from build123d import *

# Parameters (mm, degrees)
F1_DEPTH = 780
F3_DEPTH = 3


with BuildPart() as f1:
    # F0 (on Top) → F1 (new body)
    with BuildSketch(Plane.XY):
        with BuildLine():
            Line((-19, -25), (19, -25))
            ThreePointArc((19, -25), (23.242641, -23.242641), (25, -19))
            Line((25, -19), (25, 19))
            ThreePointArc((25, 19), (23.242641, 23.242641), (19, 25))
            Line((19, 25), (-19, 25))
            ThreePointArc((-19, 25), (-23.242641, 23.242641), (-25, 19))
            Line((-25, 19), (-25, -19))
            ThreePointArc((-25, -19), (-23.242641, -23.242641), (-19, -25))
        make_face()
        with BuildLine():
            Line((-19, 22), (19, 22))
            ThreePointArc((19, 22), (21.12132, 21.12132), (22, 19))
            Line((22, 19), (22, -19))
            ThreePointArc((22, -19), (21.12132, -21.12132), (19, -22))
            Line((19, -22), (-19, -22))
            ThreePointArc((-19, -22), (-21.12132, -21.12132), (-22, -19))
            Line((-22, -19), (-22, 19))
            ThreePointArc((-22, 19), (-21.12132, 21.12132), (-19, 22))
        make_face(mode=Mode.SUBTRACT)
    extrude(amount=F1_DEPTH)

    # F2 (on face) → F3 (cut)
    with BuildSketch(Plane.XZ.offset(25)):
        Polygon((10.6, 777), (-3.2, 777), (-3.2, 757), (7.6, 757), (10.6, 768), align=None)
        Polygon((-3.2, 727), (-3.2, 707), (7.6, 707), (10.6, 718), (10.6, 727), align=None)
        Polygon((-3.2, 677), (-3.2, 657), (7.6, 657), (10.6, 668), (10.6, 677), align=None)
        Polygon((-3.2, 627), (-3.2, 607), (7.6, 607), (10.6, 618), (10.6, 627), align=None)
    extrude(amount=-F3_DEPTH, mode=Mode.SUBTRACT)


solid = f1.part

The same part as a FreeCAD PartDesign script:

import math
import FreeCAD as App
import Part
import Sketcher
from FreeCAD import Vector


def add_polygon(sketch, points):
    """Adds a closed chain of lines whose ends are joined by coincident constraints."""
    first, n = sketch.GeometryCount, len(points)
    for a, b in zip(points, points[1:] + points[:1]):
        sketch.addGeometry(Part.LineSegment(App.Vector(*a, 0), App.Vector(*b, 0)), False)
    for i in range(n):
        sketch.addConstraint(Sketcher.Constraint("Coincident", first + i, 2, first + (i + 1) % n, 1))

doc = App.newDocument("Part")
body = doc.addObject("PartDesign::Body", "Body")

# Sketch on XY plane
sketch1 = doc.addObject("Sketcher::SketchObject", "Sketch")
body.addObject(sketch1)
sketch1.AttachmentSupport = (doc.XY_Plane, [""])
sketch1.MapMode = "FlatFace"
sketch1.addGeometry(Part.LineSegment(Vector(-19, -25, 0), Vector(19, -25, 0)), False)
sketch1.addGeometry(Part.ArcOfCircle(Part.Circle(Vector(19, -19, 0), Vector(0, 0, 1), 6), math.radians(-90), math.radians(0)), False)
sketch1.addGeometry(Part.LineSegment(Vector(25, -19, 0), Vector(25, 19, 0)), False)
sketch1.addGeometry(Part.ArcOfCircle(Part.Circle(Vector(19, 19, 0), Vector(0, 0, 1), 6), math.radians(0), math.radians(90)), False)
sketch1.addGeometry(Part.LineSegment(Vector(19, 25, 0), Vector(-19, 25, 0)), False)
sketch1.addGeometry(Part.ArcOfCircle(Part.Circle(Vector(-19, 19, 0), Vector(0, 0, 1), 6), math.radians(90), math.radians(180)), False)
sketch1.addGeometry(Part.LineSegment(Vector(-25, 19, 0), Vector(-25, -19, 0)), False)
sketch1.addGeometry(Part.ArcOfCircle(Part.Circle(Vector(-19, -19, 0), Vector(0, 0, 1), 6), math.radians(180), math.radians(270)), False)
sketch1.addGeometry(Part.ArcOfCircle(Part.Circle(Vector(-19, 19, 0), Vector(0, 0, 1), 3), math.radians(90), math.radians(180)), False)
sketch1.addGeometry(Part.LineSegment(Vector(-19, 22, 0), Vector(19, 22, 0)), False)
sketch1.addGeometry(Part.ArcOfCircle(Part.Circle(Vector(19, 19, 0), Vector(0, 0, 1), 3), math.radians(0), math.radians(90)), False)
sketch1.addGeometry(Part.LineSegment(Vector(22, 19, 0), Vector(22, -19, 0)), False)
sketch1.addGeometry(Part.ArcOfCircle(Part.Circle(Vector(19, -19, 0), Vector(0, 0, 1), 3), math.radians(-90), math.radians(0)), False)
sketch1.addGeometry(Part.LineSegment(Vector(19, -22, 0), Vector(-19, -22, 0)), False)
sketch1.addGeometry(Part.ArcOfCircle(Part.Circle(Vector(-19, -19, 0), Vector(0, 0, 1), 3), math.radians(-180), math.radians(-90)), False)
sketch1.addGeometry(Part.LineSegment(Vector(-22, -19, 0), Vector(-22, 19, 0)), False)
sketch1.addConstraint(Sketcher.Constraint("Tangent", 0, 2, 1, 1))
sketch1.addConstraint(Sketcher.Constraint("Tangent", 1, 2, 2, 1))
sketch1.addConstraint(Sketcher.Constraint("Tangent", 2, 2, 3, 1))
sketch1.addConstraint(Sketcher.Constraint("Tangent", 3, 2, 4, 1))
sketch1.addConstraint(Sketcher.Constraint("Tangent", 4, 2, 5, 1))
sketch1.addConstraint(Sketcher.Constraint("Tangent", 5, 2, 6, 1))
sketch1.addConstraint(Sketcher.Constraint("Tangent", 6, 2, 7, 1))
sketch1.addConstraint(Sketcher.Constraint("Tangent", 7, 2, 0, 1))
sketch1.addConstraint(Sketcher.Constraint("Tangent", 8, 1, 9, 1))
sketch1.addConstraint(Sketcher.Constraint("Tangent", 9, 2, 10, 2))
sketch1.addConstraint(Sketcher.Constraint("Tangent", 10, 1, 11, 1))
sketch1.addConstraint(Sketcher.Constraint("Tangent", 11, 2, 12, 2))
sketch1.addConstraint(Sketcher.Constraint("Tangent", 12, 1, 13, 1))
sketch1.addConstraint(Sketcher.Constraint("Tangent", 13, 2, 14, 2))
sketch1.addConstraint(Sketcher.Constraint("Tangent", 14, 1, 15, 1))
sketch1.addConstraint(Sketcher.Constraint("Tangent", 15, 2, 8, 2))
sketch1.addConstraint(Sketcher.Constraint("Horizontal", 0))
sketch1.addConstraint(Sketcher.Constraint("Vertical", 2))
sketch1.addConstraint(Sketcher.Constraint("Horizontal", 4))
sketch1.addConstraint(Sketcher.Constraint("Vertical", 6))
sketch1.addConstraint(Sketcher.Constraint("Horizontal", 9))
sketch1.addConstraint(Sketcher.Constraint("Vertical", 11))
sketch1.addConstraint(Sketcher.Constraint("Horizontal", 13))
sketch1.addConstraint(Sketcher.Constraint("Vertical", 15))
sketch1.addConstraint(Sketcher.Constraint("Coincident", 8, 3, 5, 3))
sketch1.addConstraint(Sketcher.Constraint("Coincident", 10, 3, 3, 3))
sketch1.addConstraint(Sketcher.Constraint("Coincident", 12, 3, 1, 3))
sketch1.addConstraint(Sketcher.Constraint("Equal", 1, 3))
sketch1.addConstraint(Sketcher.Constraint("Equal", 3, 5))
sketch1.addConstraint(Sketcher.Constraint("Equal", 5, 7))
sketch1.addConstraint(Sketcher.Constraint("Equal", 12, 14))
sketch1.addConstraint(Sketcher.Constraint("Symmetric", 1, 3, 5, 3, -1, 1))
sketch1.addConstraint(Sketcher.Constraint("Equal", 13, 2))
sketch1.addConstraint(Sketcher.Constraint("Radius", 1, 5.999999))
sketch1.addConstraint(Sketcher.Constraint("Radius", 8, 3.000001))
sketch1.addConstraint(Sketcher.Constraint("DistanceX", 0, 1, 0, 2, 38.0))
pad1 = doc.addObject("PartDesign::Pad", "Pad")
body.addObject(pad1)
pad1.Profile = sketch1
pad1.Length = 780

# Sketch on XZ plane
sketch2 = doc.addObject("Sketcher::SketchObject", "Sketch001")
body.addObject(sketch2)
sketch2.AttachmentSupport = (doc.XZ_Plane, [""])
sketch2.MapMode = "FlatFace"
sketch2.AttachmentOffset = App.Placement(Vector(0, 0, 25), App.Rotation())
add_polygon(sketch2, [(11, 777), (-3, 777), (-3, 757), (8, 757), (11, 768)])  # lines 0-4
add_polygon(sketch2, [(-3, 727), (-3, 707), (8, 707), (11, 718), (11, 727)])  # lines 5-9
add_polygon(sketch2, [(-3, 677), (-3, 657), (8, 657), (11, 668), (11, 677)])  # lines 10-14
add_polygon(sketch2, [(-3, 627), (-3, 607), (8, 607), (11, 618), (11, 627)])  # lines 15-19
sketch2.addConstraint(Sketcher.Constraint("Horizontal", 0))
sketch2.addConstraint(Sketcher.Constraint("Vertical", 1))
sketch2.addConstraint(Sketcher.Constraint("Horizontal", 2))
sketch2.addConstraint(Sketcher.Constraint("Vertical", 4))
sketch2.addConstraint(Sketcher.Constraint("Vertical", 5))
sketch2.addConstraint(Sketcher.Constraint("Horizontal", 6))
sketch2.addConstraint(Sketcher.Constraint("Vertical", 8))
sketch2.addConstraint(Sketcher.Constraint("Horizontal", 9))
sketch2.addConstraint(Sketcher.Constraint("Vertical", 10))
sketch2.addConstraint(Sketcher.Constraint("Horizontal", 11))
sketch2.addConstraint(Sketcher.Constraint("Vertical", 13))
sketch2.addConstraint(Sketcher.Constraint("Horizontal", 14))
sketch2.addConstraint(Sketcher.Constraint("Vertical", 15))
sketch2.addConstraint(Sketcher.Constraint("Horizontal", 16))
sketch2.addConstraint(Sketcher.Constraint("Vertical", 18))
sketch2.addConstraint(Sketcher.Constraint("Horizontal", 19))
sketch2.addConstraint(Sketcher.Constraint("Parallel", 3, 7))
sketch2.addConstraint(Sketcher.Constraint("Parallel", 7, 12))
sketch2.addConstraint(Sketcher.Constraint("Parallel", 12, 17))
sketch2.addConstraint(Sketcher.Constraint("Vertical", 1, 2, 5, 2))
sketch2.addConstraint(Sketcher.Constraint("Vertical", 2, 2, 6, 2))
sketch2.addConstraint(Sketcher.Constraint("Vertical", 4, 2, 7, 2))
sketch2.addConstraint(Sketcher.Constraint("Vertical", 9, 2, 10, 2))
sketch2.addConstraint(Sketcher.Constraint("Vertical", 6, 2, 11, 2))
sketch2.addConstraint(Sketcher.Constraint("Vertical", 8, 2, 12, 2))
sketch2.addConstraint(Sketcher.Constraint("Vertical", 14, 2, 15, 2))
sketch2.addConstraint(Sketcher.Constraint("Vertical", 11, 2, 16, 2))
sketch2.addConstraint(Sketcher.Constraint("Vertical", 13, 2, 17, 2))
sketch2.addConstraint(Sketcher.Constraint("Equal", 1, 5))
sketch2.addConstraint(Sketcher.Constraint("Equal", 5, 10))
sketch2.addConstraint(Sketcher.Constraint("Equal", 10, 15))
sketch2.addConstraint(Sketcher.Constraint("DistanceY", 1, 2, 1, 1, 20.0))
sketch2.addConstraint(Sketcher.Constraint("DistanceY", 4, 1, 4, 2, 9.0))
sketch2.addConstraint(Sketcher.Constraint("DistanceX", 0, 2, 0, 1, 13.8))
sketch2.addConstraint(Sketcher.Constraint("DistanceX", 2, 1, 2, 2, 10.8))
sketch2.addConstraint(Sketcher.Constraint("DistanceY", -1, 1, 0, 2, 777.0))
sketch2.addConstraint(Sketcher.Constraint("DistanceY", -1, 1, 5, 2, 707.0))
sketch2.addConstraint(Sketcher.Constraint("DistanceY", -1, 1, 10, 2, 657.0))
sketch2.addConstraint(Sketcher.Constraint("DistanceY", -1, 1, 15, 2, 607.0))
sketch2.addConstraint(Sketcher.Constraint("DistanceX", 0, 2, -1, 1, 3.2))
pocket1 = doc.addObject("PartDesign::Pocket", "Pocket")
body.addObject(pocket1)
pocket1.Profile = sketch2
pocket1.Length = 3

doc.recompute()
